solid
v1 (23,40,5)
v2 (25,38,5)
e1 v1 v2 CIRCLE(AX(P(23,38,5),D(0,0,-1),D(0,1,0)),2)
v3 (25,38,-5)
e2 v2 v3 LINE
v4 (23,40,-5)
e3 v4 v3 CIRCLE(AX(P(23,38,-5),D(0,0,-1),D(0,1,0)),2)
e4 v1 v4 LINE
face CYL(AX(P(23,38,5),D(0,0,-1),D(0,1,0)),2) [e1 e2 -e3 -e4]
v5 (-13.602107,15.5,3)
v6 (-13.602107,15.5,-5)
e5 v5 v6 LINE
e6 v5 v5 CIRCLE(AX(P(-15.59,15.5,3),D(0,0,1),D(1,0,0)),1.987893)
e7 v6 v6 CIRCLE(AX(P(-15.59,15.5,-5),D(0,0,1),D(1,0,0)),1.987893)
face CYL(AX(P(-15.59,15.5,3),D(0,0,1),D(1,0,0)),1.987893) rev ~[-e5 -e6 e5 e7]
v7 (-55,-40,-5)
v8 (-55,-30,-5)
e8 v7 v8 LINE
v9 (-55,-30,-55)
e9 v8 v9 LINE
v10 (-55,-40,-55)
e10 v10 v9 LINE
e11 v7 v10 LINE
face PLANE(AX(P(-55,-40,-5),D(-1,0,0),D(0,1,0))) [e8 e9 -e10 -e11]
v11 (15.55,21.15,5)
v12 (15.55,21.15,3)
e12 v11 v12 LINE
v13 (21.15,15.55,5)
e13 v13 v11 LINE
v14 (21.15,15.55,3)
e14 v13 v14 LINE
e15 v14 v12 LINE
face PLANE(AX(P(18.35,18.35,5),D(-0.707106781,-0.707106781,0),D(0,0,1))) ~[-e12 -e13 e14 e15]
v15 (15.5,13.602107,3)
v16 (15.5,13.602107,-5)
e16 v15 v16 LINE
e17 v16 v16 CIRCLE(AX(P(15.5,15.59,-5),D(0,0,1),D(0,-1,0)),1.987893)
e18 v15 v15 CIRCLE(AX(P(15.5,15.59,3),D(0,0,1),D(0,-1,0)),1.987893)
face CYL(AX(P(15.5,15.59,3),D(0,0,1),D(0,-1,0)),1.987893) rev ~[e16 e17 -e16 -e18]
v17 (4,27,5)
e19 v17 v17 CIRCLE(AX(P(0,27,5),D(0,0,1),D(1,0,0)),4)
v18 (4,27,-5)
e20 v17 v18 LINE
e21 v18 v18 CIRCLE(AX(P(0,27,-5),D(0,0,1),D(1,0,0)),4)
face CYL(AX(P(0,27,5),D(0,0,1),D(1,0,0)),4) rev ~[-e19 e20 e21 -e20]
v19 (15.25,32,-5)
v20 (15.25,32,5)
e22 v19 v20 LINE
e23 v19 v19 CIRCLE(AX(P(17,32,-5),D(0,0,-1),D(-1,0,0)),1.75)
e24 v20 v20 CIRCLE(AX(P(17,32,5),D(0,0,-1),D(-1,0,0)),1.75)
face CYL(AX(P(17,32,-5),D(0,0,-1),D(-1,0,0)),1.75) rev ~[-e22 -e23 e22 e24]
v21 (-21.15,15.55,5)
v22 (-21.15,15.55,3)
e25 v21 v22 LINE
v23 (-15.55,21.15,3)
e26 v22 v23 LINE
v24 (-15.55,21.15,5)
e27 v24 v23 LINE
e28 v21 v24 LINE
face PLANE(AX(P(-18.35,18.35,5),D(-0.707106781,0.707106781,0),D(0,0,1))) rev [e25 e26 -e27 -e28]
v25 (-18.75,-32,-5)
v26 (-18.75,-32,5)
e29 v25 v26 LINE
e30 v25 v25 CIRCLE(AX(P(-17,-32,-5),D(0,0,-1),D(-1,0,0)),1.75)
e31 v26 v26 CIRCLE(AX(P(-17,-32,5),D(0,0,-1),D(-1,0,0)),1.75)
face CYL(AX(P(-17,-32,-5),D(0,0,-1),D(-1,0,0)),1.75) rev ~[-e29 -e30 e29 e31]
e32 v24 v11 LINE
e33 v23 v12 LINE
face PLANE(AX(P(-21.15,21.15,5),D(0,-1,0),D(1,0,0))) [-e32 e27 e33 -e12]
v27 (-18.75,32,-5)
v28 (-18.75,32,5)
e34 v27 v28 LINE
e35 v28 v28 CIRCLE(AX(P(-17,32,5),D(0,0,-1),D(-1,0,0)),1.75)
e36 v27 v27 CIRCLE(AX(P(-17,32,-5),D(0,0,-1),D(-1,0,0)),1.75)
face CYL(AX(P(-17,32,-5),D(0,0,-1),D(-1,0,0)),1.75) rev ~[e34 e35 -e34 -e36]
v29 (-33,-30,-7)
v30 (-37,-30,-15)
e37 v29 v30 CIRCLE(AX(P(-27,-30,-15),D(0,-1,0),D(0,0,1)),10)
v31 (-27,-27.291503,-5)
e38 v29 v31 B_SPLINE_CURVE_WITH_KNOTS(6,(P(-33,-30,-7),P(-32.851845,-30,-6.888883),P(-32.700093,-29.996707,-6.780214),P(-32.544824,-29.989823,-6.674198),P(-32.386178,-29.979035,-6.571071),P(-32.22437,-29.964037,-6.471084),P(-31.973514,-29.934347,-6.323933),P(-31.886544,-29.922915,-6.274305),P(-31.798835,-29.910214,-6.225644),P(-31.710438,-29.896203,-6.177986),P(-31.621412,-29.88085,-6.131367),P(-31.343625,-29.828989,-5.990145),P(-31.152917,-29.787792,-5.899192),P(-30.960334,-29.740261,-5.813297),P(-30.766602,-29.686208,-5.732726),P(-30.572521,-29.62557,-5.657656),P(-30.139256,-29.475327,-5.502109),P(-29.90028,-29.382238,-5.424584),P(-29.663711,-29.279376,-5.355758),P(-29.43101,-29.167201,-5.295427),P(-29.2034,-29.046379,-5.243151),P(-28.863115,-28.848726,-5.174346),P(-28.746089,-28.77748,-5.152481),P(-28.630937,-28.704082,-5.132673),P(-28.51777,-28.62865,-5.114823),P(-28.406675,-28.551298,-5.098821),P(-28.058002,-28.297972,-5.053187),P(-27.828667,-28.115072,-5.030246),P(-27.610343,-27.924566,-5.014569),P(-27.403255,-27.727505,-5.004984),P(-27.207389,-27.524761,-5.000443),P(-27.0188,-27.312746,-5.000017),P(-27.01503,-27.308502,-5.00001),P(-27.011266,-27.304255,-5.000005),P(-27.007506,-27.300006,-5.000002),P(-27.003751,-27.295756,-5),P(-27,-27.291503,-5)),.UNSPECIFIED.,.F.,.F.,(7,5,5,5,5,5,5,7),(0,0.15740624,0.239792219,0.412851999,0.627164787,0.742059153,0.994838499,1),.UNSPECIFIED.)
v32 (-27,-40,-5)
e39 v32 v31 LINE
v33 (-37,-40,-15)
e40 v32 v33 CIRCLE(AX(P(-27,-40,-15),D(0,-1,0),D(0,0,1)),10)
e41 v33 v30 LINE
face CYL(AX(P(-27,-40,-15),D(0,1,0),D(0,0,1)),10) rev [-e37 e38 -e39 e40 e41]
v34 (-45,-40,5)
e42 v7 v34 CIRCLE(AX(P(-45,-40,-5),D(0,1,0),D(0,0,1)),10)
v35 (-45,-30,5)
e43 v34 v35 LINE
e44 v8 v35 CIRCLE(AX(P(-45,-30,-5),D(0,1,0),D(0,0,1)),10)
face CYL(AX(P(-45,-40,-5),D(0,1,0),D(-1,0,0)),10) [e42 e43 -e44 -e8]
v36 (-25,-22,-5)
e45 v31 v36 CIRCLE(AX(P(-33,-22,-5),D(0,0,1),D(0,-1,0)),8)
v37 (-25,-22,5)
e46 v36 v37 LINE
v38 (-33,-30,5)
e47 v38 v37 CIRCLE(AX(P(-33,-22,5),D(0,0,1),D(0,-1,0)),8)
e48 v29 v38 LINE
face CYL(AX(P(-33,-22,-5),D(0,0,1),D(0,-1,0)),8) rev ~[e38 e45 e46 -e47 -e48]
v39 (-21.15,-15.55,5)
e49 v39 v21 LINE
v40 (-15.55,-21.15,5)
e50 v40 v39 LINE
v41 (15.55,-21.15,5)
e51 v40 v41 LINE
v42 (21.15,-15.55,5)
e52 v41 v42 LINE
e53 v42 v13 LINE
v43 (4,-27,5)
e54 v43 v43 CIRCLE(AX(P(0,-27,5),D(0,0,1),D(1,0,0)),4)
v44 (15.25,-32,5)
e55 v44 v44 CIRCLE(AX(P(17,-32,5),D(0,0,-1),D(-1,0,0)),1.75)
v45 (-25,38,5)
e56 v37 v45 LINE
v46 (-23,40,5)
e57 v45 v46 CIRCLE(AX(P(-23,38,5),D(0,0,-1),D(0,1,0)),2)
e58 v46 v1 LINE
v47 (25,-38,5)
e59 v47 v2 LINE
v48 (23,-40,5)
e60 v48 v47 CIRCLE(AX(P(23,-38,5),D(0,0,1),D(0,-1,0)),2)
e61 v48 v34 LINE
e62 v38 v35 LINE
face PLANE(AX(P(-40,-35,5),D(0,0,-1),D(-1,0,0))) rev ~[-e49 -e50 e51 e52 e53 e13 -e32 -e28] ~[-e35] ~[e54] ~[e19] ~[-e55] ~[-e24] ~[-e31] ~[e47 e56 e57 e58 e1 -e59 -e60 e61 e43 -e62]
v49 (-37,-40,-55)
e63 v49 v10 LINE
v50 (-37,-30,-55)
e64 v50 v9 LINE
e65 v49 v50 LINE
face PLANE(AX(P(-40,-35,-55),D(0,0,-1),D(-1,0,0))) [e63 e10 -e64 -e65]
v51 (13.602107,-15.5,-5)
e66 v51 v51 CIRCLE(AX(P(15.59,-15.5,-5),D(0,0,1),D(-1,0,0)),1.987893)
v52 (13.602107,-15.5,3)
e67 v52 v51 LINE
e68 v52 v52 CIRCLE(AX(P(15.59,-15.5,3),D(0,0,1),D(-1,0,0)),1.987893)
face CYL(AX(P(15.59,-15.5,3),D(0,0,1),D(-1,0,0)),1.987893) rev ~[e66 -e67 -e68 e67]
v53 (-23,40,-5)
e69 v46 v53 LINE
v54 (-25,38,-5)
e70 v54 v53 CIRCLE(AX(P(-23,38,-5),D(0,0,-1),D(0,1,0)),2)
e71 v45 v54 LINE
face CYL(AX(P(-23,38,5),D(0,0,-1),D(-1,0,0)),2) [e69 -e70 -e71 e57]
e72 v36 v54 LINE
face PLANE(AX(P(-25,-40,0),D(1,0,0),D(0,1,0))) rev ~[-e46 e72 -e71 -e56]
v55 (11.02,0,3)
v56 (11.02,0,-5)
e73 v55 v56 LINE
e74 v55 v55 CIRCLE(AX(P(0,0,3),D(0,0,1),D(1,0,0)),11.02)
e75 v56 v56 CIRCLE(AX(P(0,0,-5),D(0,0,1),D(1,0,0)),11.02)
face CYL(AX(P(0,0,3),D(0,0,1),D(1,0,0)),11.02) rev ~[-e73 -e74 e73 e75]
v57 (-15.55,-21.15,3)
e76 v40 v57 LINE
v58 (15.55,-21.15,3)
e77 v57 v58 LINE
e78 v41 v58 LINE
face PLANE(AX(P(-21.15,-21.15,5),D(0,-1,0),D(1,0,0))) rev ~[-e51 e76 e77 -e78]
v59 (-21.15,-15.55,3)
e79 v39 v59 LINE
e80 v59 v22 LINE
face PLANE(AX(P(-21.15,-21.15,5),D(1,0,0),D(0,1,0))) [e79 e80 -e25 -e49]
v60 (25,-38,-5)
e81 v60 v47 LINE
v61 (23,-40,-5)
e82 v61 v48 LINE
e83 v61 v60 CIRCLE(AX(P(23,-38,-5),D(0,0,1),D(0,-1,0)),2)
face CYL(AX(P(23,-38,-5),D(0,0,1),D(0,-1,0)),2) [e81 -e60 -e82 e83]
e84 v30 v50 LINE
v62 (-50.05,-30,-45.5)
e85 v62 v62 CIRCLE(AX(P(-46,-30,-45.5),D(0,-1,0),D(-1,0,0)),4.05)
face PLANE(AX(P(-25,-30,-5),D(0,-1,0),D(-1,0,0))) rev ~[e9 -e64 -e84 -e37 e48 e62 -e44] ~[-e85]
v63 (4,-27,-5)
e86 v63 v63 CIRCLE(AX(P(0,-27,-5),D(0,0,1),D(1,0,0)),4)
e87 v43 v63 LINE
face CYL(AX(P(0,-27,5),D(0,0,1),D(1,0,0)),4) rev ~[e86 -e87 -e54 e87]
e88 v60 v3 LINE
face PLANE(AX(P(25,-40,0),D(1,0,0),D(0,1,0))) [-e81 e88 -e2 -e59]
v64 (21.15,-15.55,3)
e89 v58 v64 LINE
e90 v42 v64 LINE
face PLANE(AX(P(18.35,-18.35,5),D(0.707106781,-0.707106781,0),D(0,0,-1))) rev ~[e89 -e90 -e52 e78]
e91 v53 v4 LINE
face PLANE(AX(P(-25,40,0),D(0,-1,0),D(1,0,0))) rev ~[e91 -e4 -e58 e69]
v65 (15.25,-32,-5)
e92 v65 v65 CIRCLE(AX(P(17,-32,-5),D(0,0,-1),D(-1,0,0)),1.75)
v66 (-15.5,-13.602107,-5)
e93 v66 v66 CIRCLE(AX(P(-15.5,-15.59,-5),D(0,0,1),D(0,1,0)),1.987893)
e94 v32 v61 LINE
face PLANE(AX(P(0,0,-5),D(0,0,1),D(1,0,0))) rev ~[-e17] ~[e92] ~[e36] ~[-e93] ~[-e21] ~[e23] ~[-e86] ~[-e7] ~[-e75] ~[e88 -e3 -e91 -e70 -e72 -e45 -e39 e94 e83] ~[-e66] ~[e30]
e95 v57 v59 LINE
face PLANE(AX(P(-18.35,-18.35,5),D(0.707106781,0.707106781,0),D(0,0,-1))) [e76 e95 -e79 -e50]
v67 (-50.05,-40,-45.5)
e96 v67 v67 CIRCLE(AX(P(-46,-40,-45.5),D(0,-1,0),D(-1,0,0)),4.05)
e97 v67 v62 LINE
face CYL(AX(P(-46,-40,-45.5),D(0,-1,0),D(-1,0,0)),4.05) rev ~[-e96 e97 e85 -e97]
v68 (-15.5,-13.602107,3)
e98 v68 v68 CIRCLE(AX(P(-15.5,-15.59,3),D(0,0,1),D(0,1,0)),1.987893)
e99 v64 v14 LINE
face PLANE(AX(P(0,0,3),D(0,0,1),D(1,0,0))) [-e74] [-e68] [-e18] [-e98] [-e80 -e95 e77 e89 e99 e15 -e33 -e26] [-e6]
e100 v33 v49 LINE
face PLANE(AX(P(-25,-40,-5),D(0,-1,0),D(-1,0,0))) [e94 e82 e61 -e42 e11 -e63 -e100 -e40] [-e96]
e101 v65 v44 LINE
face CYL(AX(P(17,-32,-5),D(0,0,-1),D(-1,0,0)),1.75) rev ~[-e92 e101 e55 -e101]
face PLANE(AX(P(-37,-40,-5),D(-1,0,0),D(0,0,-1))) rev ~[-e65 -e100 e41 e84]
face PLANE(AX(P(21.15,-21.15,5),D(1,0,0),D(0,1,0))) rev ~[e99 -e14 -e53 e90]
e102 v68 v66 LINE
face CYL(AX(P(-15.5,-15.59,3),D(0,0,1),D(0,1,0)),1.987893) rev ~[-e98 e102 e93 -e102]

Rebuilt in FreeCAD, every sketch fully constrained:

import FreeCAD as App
import Part
import Sketcher
Q = App.Units.Quantity


def edges_at(feature, points):
    """Names of the edges that pass closest to the given points."""
    edges = feature.Shape.Edges
    near = lambda p: min(range(len(edges)), key=lambda i: edges[i].distToShape(Part.Vertex(*p))[0])
    return sorted({f"Edge{near(p) + 1}" for p in points})

doc = App.newDocument("Part")
body = doc.addObject("PartDesign::Body", "Body")

sketch1 = body.newObject("Sketcher::SketchObject", "Sketch")
sketch1.AttachmentSupport = (doc.getObject("XY_Plane"), [""])
sketch1.MapMode = "FlatFace"
sketch1.addGeometry(Part.LineSegment(App.Vector(-25, 40, 0), App.Vector(-25, -40, 0)), False)
sketch1.addGeometry(Part.LineSegment(App.Vector(-25, -40, 0), App.Vector(25, -40, 0)), False)
sketch1.addGeometry(Part.LineSegment(App.Vector(25, -40, 0), App.Vector(25, 40, 0)), False)
sketch1.addGeometry(Part.LineSegment(App.Vector(25, 40, 0), App.Vector(-25, 40, 0)), False)
sketch1.addConstraint(Sketcher.Constraint("Coincident", 0, 2, 1, 1))
sketch1.addConstraint(Sketcher.Constraint("Coincident", 1, 2, 2, 1))
sketch1.addConstraint(Sketcher.Constraint("Coincident", 2, 2, 3, 1))
sketch1.addConstraint(Sketcher.Constraint("Coincident", 3, 2, 0, 1))
sketch1.addConstraint(Sketcher.Constraint("Vertical", 0))
sketch1.addConstraint(Sketcher.Constraint("Horizontal", 1))
sketch1.addConstraint(Sketcher.Constraint("Vertical", 2))
sketch1.addConstraint(Sketcher.Constraint("Horizontal", 3))
sketch1.addConstraint(Sketcher.Constraint("Symmetric", 0, 2, 2, 2, -1, 1))
sketch1.addConstraint(Sketcher.Constraint("DistanceX", 1, 1, 1, 2, Q("50 mm")))
sketch1.addConstraint(Sketcher.Constraint("DistanceY", 0, 2, 0, 1, Q("80 mm")))
pad1 = body.newObject("PartDesign::Pad", "Pad")
pad1.Profile = sketch1
pad1.Length = 10
pad1.Midplane = True

sketch2 = body.newObject("Sketcher::SketchObject", "Sketch001")
sketch2.AttachmentSupport = (doc.getObject("XY_Plane"), [""])
sketch2.MapMode = "FlatFace"
sketch2.AttachmentOffset = App.Placement(App.Vector(0, 0, 5), App.Rotation())
sketch2.addGeometry(Part.LineSegment(App.Vector(-21, 21, 0), App.Vector(-21, -21, 0)), False)
sketch2.addGeometry(Part.LineSegment(App.Vector(-21, -21, 0), App.Vector(21, -21, 0)), False)
sketch2.addGeometry(Part.LineSegment(App.Vector(21, -21, 0), App.Vector(21, 21, 0)), False)
sketch2.addGeometry(Part.LineSegment(App.Vector(21, 21, 0), App.Vector(-21, 21, 0)), False)
sketch2.addConstraint(Sketcher.Constraint("Coincident", 0, 2, 1, 1))
sketch2.addConstraint(Sketcher.Constraint("Coincident", 1, 2, 2, 1))
sketch2.addConstraint(Sketcher.Constraint("Coincident", 2, 2, 3, 1))
sketch2.addConstraint(Sketcher.Constraint("Coincident", 3, 2, 0, 1))
sketch2.addConstraint(Sketcher.Constraint("Vertical", 0))
sketch2.addConstraint(Sketcher.Constraint("Horizontal", 1))
sketch2.addConstraint(Sketcher.Constraint("Vertical", 2))
sketch2.addConstraint(Sketcher.Constraint("Horizontal", 3))
sketch2.addConstraint(Sketcher.Constraint("Symmetric", 0, 2, 2, 2, -1, 1))
sketch2.addConstraint(Sketcher.Constraint("Equal", 3, 0))
sketch2.addConstraint(Sketcher.Constraint("DistanceX", 1, 1, 1, 2, Q("42.3 mm")))
pocket1 = body.newObject("PartDesign::Pocket", "Pocket")
pocket1.Profile = sketch2
pocket1.Length = 2

sketch3 = body.newObject("Sketcher::SketchObject", "Sketch002")
sketch3.AttachmentSupport = (doc.getObject("XY_Plane"), [""])
sketch3.MapMode = "FlatFace"
sketch3.AttachmentOffset = App.Placement(App.Vector(0, 0, 3), App.Rotation())
sketch3.addGeometry(Part.Circle(App.Vector(0, 0, 0), App.Vector(0, 0, 1), 11), False)
sketch3.addConstraint(Sketcher.Constraint("Coincident", 0, 3, -1, 1))
sketch3.addConstraint(Sketcher.Constraint("Diameter", 0, Q("22.04 mm")))
pocket2 = body.newObject("PartDesign::Pocket", "Pocket001")
pocket2.Profile = sketch3
pocket2.Length = 24

sketch4 = body.newObject("Sketcher::SketchObject", "Sketch003")
sketch4.AttachmentSupport = (doc.getObject("XY_Plane"), [""])
sketch4.MapMode = "FlatFace"
sketch4.AttachmentOffset = App.Placement(App.Vector(0, 0, 3), App.Rotation())
sketch4.addGeometry(Part.Circle(App.Vector(-15.6, 15.5, 0), App.Vector(0, 0, 1), 2), False)
sketch4.addConstraint(Sketcher.Constraint("DistanceY", -1, 1, 0, 3, Q("15.5 mm")))
sketch4.addConstraint(Sketcher.Constraint("DistanceX", 0, 3, -1, 1, Q("15.59 mm")))
sketch4.addConstraint(Sketcher.Constraint("Diameter", 0, Q("3.975786 mm")))
pocket3 = body.newObject("PartDesign::Pocket", "Pocket002")
pocket3.Profile = sketch4
pocket3.Length = 24
doc.recompute()

polarpattern = body.newObject("PartDesign::PolarPattern", "PolarPattern")
polarpattern.Originals = [pocket3]
polarpattern.Axis = (doc.getObject("Z_Axis"), [""])
polarpattern.Angle = 360
polarpattern.Occurrences = 4
body.Tip = polarpattern

sketch5 = body.newObject("Sketcher::SketchObject", "Sketch004")
sketch5.AttachmentSupport = (doc.getObject("XY_Plane"), [""])
sketch5.MapMode = "FlatFace"
sketch5.AttachmentOffset = App.Placement(App.Vector(0, 0, 5), App.Rotation())
sketch5.addGeometry(Part.Circle(App.Vector(0, 27, 0), App.Vector(0, 0, 1), 4), False)
sketch5.addGeometry(Part.Circle(App.Vector(0, -27, 0), App.Vector(0, 0, 1), 4), False)
sketch5.addConstraint(Sketcher.Constraint("Equal", 0, 1))
sketch5.addConstraint(Sketcher.Constraint("Symmetric", 0, 3, 1, 3, -1, 1))
sketch5.addConstraint(Sketcher.Constraint("PointOnObject", 0, 3, -2))
sketch5.addConstraint(Sketcher.Constraint("Diameter", 0, Q("8 mm")))
sketch5.addConstraint(Sketcher.Constraint("DistanceY", -1, 1, 0, 3, Q("27 mm")))
pocket4 = body.newObject("PartDesign::Pocket", "Pocket003")
pocket4.Profile = sketch5
pocket4.Length = 24
doc.recompute()

chamfer = body.newObject("PartDesign::Chamfer", "Chamfer")
chamfer.Base = (pocket4, edges_at(pocket4, [
    (21.15, 21.15, 4),
    (21.15, -21.15, 4),
    (-21.15, -21.15, 4),
    (-21.15, 21.15, 4),
]))
chamfer.Size = 5.6

sketch6 = body.newObject("Sketcher::SketchObject", "Sketch005")
sketch6.AttachmentSupport = (doc.getObject("XY_Plane"), [""])
sketch6.MapMode = "FlatFace"
sketch6.AttachmentOffset = App.Placement(App.Vector(0, 0, -5), App.Rotation())
sketch6.addGeometry(Part.Circle(App.Vector(17, 32, 0), App.Vector(0, 0, 1), 1.8), False)
sketch6.addGeometry(Part.Circle(App.Vector(-17, 32, 0), App.Vector(0, 0, 1), 1.8), False)
sketch6.addGeometry(Part.Circle(App.Vector(17, -32, 0), App.Vector(0, 0, 1), 1.8), False)
sketch6.addGeometry(Part.Circle(App.Vector(-17, -32, 0), App.Vector(0, 0, 1), 1.8), False)
sketch6.addConstraint(Sketcher.Constraint("Equal", 0, 1))
sketch6.addConstraint(Sketcher.Constraint("Equal", 1, 2))
sketch6.addConstraint(Sketcher.Constraint("Equal", 2, 3))
sketch6.addConstraint(Sketcher.Constraint("Symmetric", 1, 3, 2, 3, -1, 1))
sketch6.addConstraint(Sketcher.Constraint("Symmetric", 0, 3, 3, 3, -1, 1))
sketch6.addConstraint(Sketcher.Constraint("Symmetric", 0, 3, 1, 3, -2))
sketch6.addConstraint(Sketcher.Constraint("Diameter", 0, Q("3.5 mm")))
sketch6.addConstraint(Sketcher.Constraint("DistanceX", -1, 1, 0, 3, Q("17 mm")))
sketch6.addConstraint(Sketcher.Constraint("DistanceY", -1, 1, 0, 3, Q("32 mm")))
pocket5 = body.newObject("PartDesign::Pocket", "Pocket004")
pocket5.Profile = sketch6
pocket5.Length = 10
pocket5.Reversed = True
doc.recompute()

fillet = body.newObject("PartDesign::Fillet", "Fillet")
fillet.Base = (pocket5, edges_at(pocket5, [(25, -40, 0), (-25, 40, 0), (25, 40, 0)]))
fillet.Radius = 2

sketch7 = body.newObject("Sketcher::SketchObject", "Sketch006")
sketch7.AttachmentSupport = (doc.getObject("XY_Plane"), [""])
sketch7.MapMode = "FlatFace"
sketch7.AttachmentOffset = App.Placement(App.Vector(0, 0, -5), App.Rotation())
sketch7.addGeometry(Part.LineSegment(App.Vector(-25, -30, 0), App.Vector(-25, -40, 0)), False)
sketch7.addGeometry(Part.LineSegment(App.Vector(-25, -40, 0), App.Vector(-55, -40, 0)), False)
sketch7.addGeometry(Part.LineSegment(App.Vector(-55, -40, 0), App.Vector(-55, -30, 0)), False)
sketch7.addGeometry(Part.LineSegment(App.Vector(-55, -30, 0), App.Vector(-25, -30, 0)), False)
sketch7.addConstraint(Sketcher.Constraint("Coincident", 0, 2, 1, 1))
sketch7.addConstraint(Sketcher.Constraint("Coincident", 1, 2, 2, 1))
sketch7.addConstraint(Sketcher.Constraint("Coincident", 2, 2, 3, 1))
sketch7.addConstraint(Sketcher.Constraint("Coincident", 3, 2, 0, 1))
sketch7.addConstraint(Sketcher.Constraint("Vertical", 0))
sketch7.addConstraint(Sketcher.Constraint("Horizontal", 1))
sketch7.addConstraint(Sketcher.Constraint("Vertical", 2))
sketch7.addConstraint(Sketcher.Constraint("Horizontal", 3))
sketch7.addConstraint(Sketcher.Constraint("DistanceX", 1, 2, 1, 1, Q("30 mm")))
sketch7.addConstraint(Sketcher.Constraint("DistanceY", 0, 2, 0, 1, Q("10 mm")))
sketch7.addConstraint(Sketcher.Constraint("DistanceX", 0, 2, -1, 1, Q("25 mm")))
sketch7.addConstraint(Sketcher.Constraint("DistanceY", 0, 2, -1, 1, Q("40 mm")))
pad2 = body.newObject("PartDesign::Pad", "Pad001")
pad2.Profile = sketch7
pad2.Type = "TwoLengths"
pad2.Length = 50
pad2.Length2 = 10
pad2.Reversed = True

sketch8 = body.newObject("Sketcher::SketchObject", "Sketch007")
sketch8.AttachmentSupport = (doc.getObject("XZ_Plane"), [""])
sketch8.MapMode = "FlatFace"
sketch8.AttachmentOffset = App.Placement(App.Vector(0, 0, 40), App.Rotation())
sketch8.addGeometry(Part.Circle(App.Vector(-46, -45.5, 0), App.Vector(0, 0, 1), 4), False)
sketch8.addConstraint(Sketcher.Constraint("Diameter", 0, Q("8.1 mm")))
sketch8.addConstraint(Sketcher.Constraint("DistanceX", 0, 3, -1, 1, Q("46 mm")))
sketch8.addConstraint(Sketcher.Constraint("DistanceY", 0, 3, -1, 1, Q("45.5 mm")))
pocket6 = body.newObject("PartDesign::Pocket", "Pocket005")
pocket6.Profile = sketch8
pocket6.Length = 45

sketch9 = body.newObject("Sketcher::SketchObject", "Sketch008")
sketch9.AttachmentSupport = (doc.getObject("XZ_Plane"), [""])
sketch9.MapMode = "FlatFace"
sketch9.AttachmentOffset = App.Placement(App.Vector(0, 0, 40), App.Rotation())
sketch9.addGeometry(Part.LineSegment(App.Vector(-25, -55, 0), App.Vector(-25, -5, 0)), False)
sketch9.addGeometry(Part.LineSegment(App.Vector(-25, -5, 0), App.Vector(-37, -5, 0)), False)
sketch9.addGeometry(Part.LineSegment(App.Vector(-37, -5, 0), App.Vector(-37, -55, 0)), False)
sketch9.addGeometry(Part.LineSegment(App.Vector(-37, -55, 0), App.Vector(-25, -55, 0)), False)
sketch9.addConstraint(Sketcher.Constraint("Coincident", 0, 2, 1, 1))
sketch9.addConstraint(Sketcher.Constraint("Coincident", 1, 2, 2, 1))
sketch9.addConstraint(Sketcher.Constraint("Coincident", 2, 2, 3, 1))
sketch9.addConstraint(Sketcher.Constraint("Coincident", 3, 2, 0, 1))
sketch9.addConstraint(Sketcher.Constraint("Vertical", 0))
sketch9.addConstraint(Sketcher.Constraint("Horizontal", 1))
sketch9.addConstraint(Sketcher.Constraint("Vertical", 2))
sketch9.addConstraint(Sketcher.Constraint("Horizontal", 3))
sketch9.addConstraint(Sketcher.Constraint("DistanceX", 1, 2, 1, 1, Q("12 mm")))
sketch9.addConstraint(Sketcher.Constraint("DistanceY", 0, 1, 0, 2, Q("50 mm")))
sketch9.addConstraint(Sketcher.Constraint("DistanceX", 0, 2, -1, 1, Q("25 mm")))
sketch9.addConstraint(Sketcher.Constraint("DistanceY", 0, 2, -1, 1, Q("5 mm")))
pocket7 = body.newObject("PartDesign::Pocket", "Pocket006")
pocket7.Profile = sketch9
pocket7.Length = 45
doc.recompute()

fillet2 = body.newObject("PartDesign::Fillet", "Fillet001")
fillet2.Base = (pocket7, edges_at(pocket7, [(-55, -35, 5), (-37, -35, -5)]))
fillet2.Radius = 10
doc.recompute()

fillet3 = body.newObject("PartDesign::Fillet", "Fillet002")
fillet3.Base = (fillet2, edges_at(fillet2, [(-25, -30, 0)]))
fillet3.Radius = 8

doc.recompute()
